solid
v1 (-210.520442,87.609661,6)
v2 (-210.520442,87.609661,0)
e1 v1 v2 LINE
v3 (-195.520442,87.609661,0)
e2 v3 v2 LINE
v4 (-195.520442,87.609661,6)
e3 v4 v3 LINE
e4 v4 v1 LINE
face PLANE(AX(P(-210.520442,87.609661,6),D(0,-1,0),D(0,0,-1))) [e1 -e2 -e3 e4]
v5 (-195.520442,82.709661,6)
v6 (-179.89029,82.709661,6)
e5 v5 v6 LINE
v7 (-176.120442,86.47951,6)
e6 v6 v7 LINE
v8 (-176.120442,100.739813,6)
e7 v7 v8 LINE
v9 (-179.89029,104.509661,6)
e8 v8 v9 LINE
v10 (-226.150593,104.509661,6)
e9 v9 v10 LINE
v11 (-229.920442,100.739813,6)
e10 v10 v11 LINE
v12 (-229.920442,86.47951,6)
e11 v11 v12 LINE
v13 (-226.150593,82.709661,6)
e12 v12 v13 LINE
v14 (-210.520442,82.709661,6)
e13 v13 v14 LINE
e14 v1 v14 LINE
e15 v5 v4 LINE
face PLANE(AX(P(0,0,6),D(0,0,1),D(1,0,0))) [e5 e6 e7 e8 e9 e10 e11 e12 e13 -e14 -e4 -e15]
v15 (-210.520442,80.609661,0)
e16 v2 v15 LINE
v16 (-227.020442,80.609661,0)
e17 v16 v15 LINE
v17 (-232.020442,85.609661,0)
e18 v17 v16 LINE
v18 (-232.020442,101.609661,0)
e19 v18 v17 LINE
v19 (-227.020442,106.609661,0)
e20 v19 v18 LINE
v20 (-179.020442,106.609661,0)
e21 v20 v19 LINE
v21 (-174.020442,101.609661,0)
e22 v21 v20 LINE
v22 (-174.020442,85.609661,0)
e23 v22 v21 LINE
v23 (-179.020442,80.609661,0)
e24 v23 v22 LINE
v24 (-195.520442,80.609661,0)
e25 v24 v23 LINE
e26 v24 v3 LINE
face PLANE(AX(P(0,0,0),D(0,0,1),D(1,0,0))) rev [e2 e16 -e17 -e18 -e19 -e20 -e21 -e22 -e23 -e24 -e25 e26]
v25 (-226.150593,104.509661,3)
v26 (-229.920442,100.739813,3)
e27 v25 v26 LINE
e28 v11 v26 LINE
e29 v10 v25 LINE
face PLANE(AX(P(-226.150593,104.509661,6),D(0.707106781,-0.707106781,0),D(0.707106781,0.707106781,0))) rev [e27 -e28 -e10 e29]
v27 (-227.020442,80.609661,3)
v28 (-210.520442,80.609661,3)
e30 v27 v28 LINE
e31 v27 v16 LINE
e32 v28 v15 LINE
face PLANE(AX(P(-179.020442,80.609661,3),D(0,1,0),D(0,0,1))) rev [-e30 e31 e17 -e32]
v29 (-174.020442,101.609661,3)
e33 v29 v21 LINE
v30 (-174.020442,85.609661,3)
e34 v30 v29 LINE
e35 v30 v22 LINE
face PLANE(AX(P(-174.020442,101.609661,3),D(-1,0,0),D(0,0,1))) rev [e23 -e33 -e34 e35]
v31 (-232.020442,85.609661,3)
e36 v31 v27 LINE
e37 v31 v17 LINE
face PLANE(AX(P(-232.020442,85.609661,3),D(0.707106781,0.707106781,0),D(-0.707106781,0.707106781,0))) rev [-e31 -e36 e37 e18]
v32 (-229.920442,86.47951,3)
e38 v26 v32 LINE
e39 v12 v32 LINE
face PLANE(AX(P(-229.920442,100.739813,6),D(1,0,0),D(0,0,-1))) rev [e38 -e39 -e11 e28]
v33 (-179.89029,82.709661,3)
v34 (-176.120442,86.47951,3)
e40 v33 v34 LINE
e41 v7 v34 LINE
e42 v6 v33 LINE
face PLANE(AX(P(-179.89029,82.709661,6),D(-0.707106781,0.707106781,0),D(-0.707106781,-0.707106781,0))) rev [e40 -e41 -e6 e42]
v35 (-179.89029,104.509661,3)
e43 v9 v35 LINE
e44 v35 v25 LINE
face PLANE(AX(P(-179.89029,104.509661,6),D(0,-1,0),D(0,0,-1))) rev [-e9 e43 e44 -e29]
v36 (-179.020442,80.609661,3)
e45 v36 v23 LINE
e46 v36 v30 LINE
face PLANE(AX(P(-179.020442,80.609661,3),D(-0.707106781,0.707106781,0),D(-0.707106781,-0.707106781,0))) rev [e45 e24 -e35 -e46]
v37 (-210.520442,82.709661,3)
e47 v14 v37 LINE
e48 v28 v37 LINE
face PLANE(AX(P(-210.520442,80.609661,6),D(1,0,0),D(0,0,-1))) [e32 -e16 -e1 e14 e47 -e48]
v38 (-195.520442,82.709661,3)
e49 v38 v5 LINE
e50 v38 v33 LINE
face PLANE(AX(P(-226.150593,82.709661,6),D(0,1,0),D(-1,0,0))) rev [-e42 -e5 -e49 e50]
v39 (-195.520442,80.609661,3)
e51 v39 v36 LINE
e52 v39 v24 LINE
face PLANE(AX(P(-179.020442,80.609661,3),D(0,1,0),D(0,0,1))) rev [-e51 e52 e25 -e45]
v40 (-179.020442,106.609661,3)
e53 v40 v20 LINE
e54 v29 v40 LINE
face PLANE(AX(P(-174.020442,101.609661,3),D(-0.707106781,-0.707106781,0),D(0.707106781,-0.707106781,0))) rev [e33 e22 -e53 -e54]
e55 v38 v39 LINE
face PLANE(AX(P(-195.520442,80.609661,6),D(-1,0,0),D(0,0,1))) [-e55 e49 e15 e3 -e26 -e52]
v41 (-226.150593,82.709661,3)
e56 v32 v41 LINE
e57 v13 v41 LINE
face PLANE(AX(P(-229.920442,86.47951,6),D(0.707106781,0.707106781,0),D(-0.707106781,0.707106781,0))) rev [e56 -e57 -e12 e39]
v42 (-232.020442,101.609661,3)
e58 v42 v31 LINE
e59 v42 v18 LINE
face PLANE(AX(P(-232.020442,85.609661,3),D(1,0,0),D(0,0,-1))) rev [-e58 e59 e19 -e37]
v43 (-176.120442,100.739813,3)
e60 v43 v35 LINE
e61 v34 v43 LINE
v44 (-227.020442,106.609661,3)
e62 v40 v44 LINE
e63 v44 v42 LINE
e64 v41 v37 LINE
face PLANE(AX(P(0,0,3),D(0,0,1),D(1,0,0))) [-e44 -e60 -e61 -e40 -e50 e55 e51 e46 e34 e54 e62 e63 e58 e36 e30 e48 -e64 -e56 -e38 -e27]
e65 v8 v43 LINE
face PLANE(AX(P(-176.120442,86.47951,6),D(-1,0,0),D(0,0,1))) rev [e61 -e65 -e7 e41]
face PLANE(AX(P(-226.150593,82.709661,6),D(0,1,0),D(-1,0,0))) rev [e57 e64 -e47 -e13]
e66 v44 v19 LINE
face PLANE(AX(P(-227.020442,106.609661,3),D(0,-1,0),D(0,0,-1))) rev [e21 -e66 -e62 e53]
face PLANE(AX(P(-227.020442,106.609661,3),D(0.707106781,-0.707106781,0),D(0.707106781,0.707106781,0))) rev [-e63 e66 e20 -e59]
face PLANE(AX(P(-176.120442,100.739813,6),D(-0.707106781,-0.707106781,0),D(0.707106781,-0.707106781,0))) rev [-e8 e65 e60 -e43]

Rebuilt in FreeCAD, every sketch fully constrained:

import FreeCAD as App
import Part
import Sketcher
from FreeCAD import Vector
Q = App.Units.Quantity

doc = App.newDocument("Part")
body = doc.addObject("PartDesign::Body", "Body")

# Sketch on XY plane
sketch1 = body.newObject("Sketcher::SketchObject", "Sketch")
sketch1.AttachmentSupport = (doc.getObject("XY_Plane"), [""])
sketch1.MapMode = "FlatFace"
sketch1.addGeometry(Part.LineSegment(Vector(-232.020442, 101.609661, 0), Vector(-232.020442, 85.609661, 0)), False)
sketch1.addGeometry(Part.LineSegment(Vector(-232.020442, 85.609661, 0), Vector(-227.020442, 80.609661, 0)), False)
sketch1.addGeometry(Part.LineSegment(Vector(-227.020442, 80.609661, 0), Vector(-179.020442, 80.609661, 0)), False)
sketch1.addGeometry(Part.LineSegment(Vector(-179.020442, 80.609661, 0), Vector(-174.020442, 85.609661, 0)), False)
sketch1.addGeometry(Part.LineSegment(Vector(-174.020442, 85.609661, 0), Vector(-174.020442, 101.609661, 0)), False)
sketch1.addGeometry(Part.LineSegment(Vector(-174.020442, 101.609661, 0), Vector(-179.020442, 106.609661, 0)), False)
sketch1.addGeometry(Part.LineSegment(Vector(-179.020442, 106.609661, 0), Vector(-227.020442, 106.609661, 0)), False)
sketch1.addGeometry(Part.LineSegment(Vector(-227.020442, 106.609661, 0), Vector(-232.020442, 101.609661, 0)), False)
sketch1.addConstraint(Sketcher.Constraint("Coincident", 0, 2, 1, 1))
sketch1.addConstraint(Sketcher.Constraint("Coincident", 1, 2, 2, 1))
sketch1.addConstraint(Sketcher.Constraint("Coincident", 2, 2, 3, 1))
sketch1.addConstraint(Sketcher.Constraint("Coincident", 3, 2, 4, 1))
sketch1.addConstraint(Sketcher.Constraint("Coincident", 4, 2, 5, 1))
sketch1.addConstraint(Sketcher.Constraint("Coincident", 5, 2, 6, 1))
sketch1.addConstraint(Sketcher.Constraint("Coincident", 6, 2, 7, 1))
sketch1.addConstraint(Sketcher.Constraint("Coincident", 7, 2, 0, 1))
sketch1.addConstraint(Sketcher.Constraint("Vertical", 0))
sketch1.addConstraint(Sketcher.Constraint("Horizontal", 2))
sketch1.addConstraint(Sketcher.Constraint("Vertical", 4))
sketch1.addConstraint(Sketcher.Constraint("Horizontal", 6))
sketch1.addConstraint(Sketcher.Constraint("Perpendicular", 1, 3))
sketch1.addConstraint(Sketcher.Constraint("Perpendicular", 3, 5))
sketch1.addConstraint(Sketcher.Constraint("Perpendicular", 5, 7))
sketch1.addConstraint(Sketcher.Constraint("Horizontal", 0, 2, 3, 2))
sketch1.addConstraint(Sketcher.Constraint("Horizontal", 4, 2, 7, 2))
sketch1.addConstraint(Sketcher.Constraint("Vertical", 2, 2, 5, 2))
sketch1.addConstraint(Sketcher.Constraint("Vertical", 1, 2, 6, 2))
sketch1.addConstraint(Sketcher.Constraint("DistanceX", 2, 1, 2, 2, Q("48 mm")))
sketch1.addConstraint(Sketcher.Constraint("DistanceY", 0, 2, 0, 1, Q("16 mm")))
sketch1.addConstraint(Sketcher.Constraint("DistanceX", 0, 2, 1, 2, Q("5 mm")))
sketch1.addConstraint(Sketcher.Constraint("DistanceX", 0, 2, -1, 1, Q("232.020442 mm")))
sketch1.addConstraint(Sketcher.Constraint("DistanceY", -1, 1, 0, 2, Q("85.609661 mm")))
pad1 = body.newObject("PartDesign::Pad", "Pad")
pad1.Profile = sketch1
pad1.Length = 3

# Sketch on XY plane
sketch2 = body.newObject("Sketcher::SketchObject", "Sketch001")
sketch2.AttachmentSupport = (doc.getObject("XY_Plane"), [""])
sketch2.MapMode = "FlatFace"
sketch2.AttachmentOffset = App.Placement(Vector(0, 0, 3), App.Rotation())
sketch2.addGeometry(Part.LineSegment(Vector(-176.120442, 100.739813, 0), Vector(-176.120442, 86.47951, 0)), False)
sketch2.addGeometry(Part.LineSegment(Vector(-176.120442, 86.47951, 0), Vector(-179.89029, 82.709661, 0)), False)
sketch2.addGeometry(Part.LineSegment(Vector(-179.89029, 82.709661, 0), Vector(-226.150593, 82.709661, 0)), False)
sketch2.addGeometry(Part.LineSegment(Vector(-226.150593, 82.709661, 0), Vector(-229.920442, 86.47951, 0)), False)
sketch2.addGeometry(Part.LineSegment(Vector(-229.920442, 86.47951, 0), Vector(-229.920442, 100.739813, 0)), False)
sketch2.addGeometry(Part.LineSegment(Vector(-229.920442, 100.739813, 0), Vector(-226.150593, 104.509661, 0)), False)
sketch2.addGeometry(Part.LineSegment(Vector(-226.150593, 104.509661, 0), Vector(-179.89029, 104.509661, 0)), False)
sketch2.addGeometry(Part.LineSegment(Vector(-179.89029, 104.509661, 0), Vector(-176.120442, 100.739813, 0)), False)
sketch2.addConstraint(Sketcher.Constraint("Coincident", 0, 2, 1, 1))
sketch2.addConstraint(Sketcher.Constraint("Coincident", 1, 2, 2, 1))
sketch2.addConstraint(Sketcher.Constraint("Coincident", 2, 2, 3, 1))
sketch2.addConstraint(Sketcher.Constraint("Coincident", 3, 2, 4, 1))
sketch2.addConstraint(Sketcher.Constraint("Coincident", 4, 2, 5, 1))
sketch2.addConstraint(Sketcher.Constraint("Coincident", 5, 2, 6, 1))
sketch2.addConstraint(Sketcher.Constraint("Coincident", 6, 2, 7, 1))
sketch2.addConstraint(Sketcher.Constraint("Coincident", 7, 2, 0, 1))
sketch2.addConstraint(Sketcher.Constraint("Vertical", 0))
sketch2.addConstraint(Sketcher.Constraint("Horizontal", 2))
sketch2.addConstraint(Sketcher.Constraint("Vertical", 4))
sketch2.addConstraint(Sketcher.Constraint("Horizontal", 6))
sketch2.addConstraint(Sketcher.Constraint("Perpendicular", 1, 3))
sketch2.addConstraint(Sketcher.Constraint("Perpendicular", 3, 5))
sketch2.addConstraint(Sketcher.Constraint("Perpendicular", 5, 7))
sketch2.addConstraint(Sketcher.Constraint("Horizontal", 0, 2, 3, 2))
sketch2.addConstraint(Sketcher.Constraint("Horizontal", 4, 2, 7, 2))
sketch2.addConstraint(Sketcher.Constraint("Vertical", 2, 2, 5, 2))
sketch2.addConstraint(Sketcher.Constraint("Vertical", 1, 2, 6, 2))
sketch2.addConstraint(Sketcher.Constraint("DistanceX", 3, 2, 0, 2, Q("53.8 mm")))
sketch2.addConstraint(Sketcher.Constraint("DistanceY", 2, 2, 5, 2, Q("21.8 mm")))
sketch2.addConstraint(Sketcher.Constraint("Distance", 1, Q("5.331371 mm")))
sketch2.addConstraint(Sketcher.Constraint("DistanceX", 0, 2, -1, 1, Q("176.120442 mm")))
sketch2.addConstraint(Sketcher.Constraint("DistanceY", -1, 1, 0, 2, Q("86.47951 mm")))
pad2 = body.newObject("PartDesign::Pad", "Pad001")
pad2.Profile = sketch2
pad2.Length = 3

# Sketch on XY plane
sketch3 = body.newObject("Sketcher::SketchObject", "Sketch002")
sketch3.AttachmentSupport = (doc.getObject("XY_Plane"), [""])
sketch3.MapMode = "FlatFace"
sketch3.addGeometry(Part.LineSegment(Vector(-210.520442, 87.609661, 0), Vector(-210.520442, 80.609661, 0)), False)
sketch3.addGeometry(Part.LineSegment(Vector(-210.520442, 80.609661, 0), Vector(-195.520442, 80.609661, 0)), False)
sketch3.addGeometry(Part.LineSegment(Vector(-195.520442, 80.609661, 0), Vector(-195.520442, 87.609661, 0)), False)
sketch3.addGeometry(Part.LineSegment(Vector(-195.520442, 87.609661, 0), Vector(-210.520442, 87.609661, 0)), False)
sketch3.addConstraint(Sketcher.Constraint("Coincident", 0, 2, 1, 1))
sketch3.addConstraint(Sketcher.Constraint("Coincident", 1, 2, 2, 1))
sketch3.addConstraint(Sketcher.Constraint("Coincident", 2, 2, 3, 1))
sketch3.addConstraint(Sketcher.Constraint("Coincident", 3, 2, 0, 1))
sketch3.addConstraint(Sketcher.Constraint("Vertical", 0))
sketch3.addConstraint(Sketcher.Constraint("Horizontal", 1))
sketch3.addConstraint(Sketcher.Constraint("Vertical", 2))
sketch3.addConstraint(Sketcher.Constraint("Horizontal", 3))
sketch3.addConstraint(Sketcher.Constraint("DistanceX", 1, 1, 1, 2, Q("15 mm")))
sketch3.addConstraint(Sketcher.Constraint("DistanceY", 0, 2, 0, 1, Q("7 mm")))
sketch3.addConstraint(Sketcher.Constraint("DistanceX", 0, 2, -1, 1, Q("210.520442 mm")))
sketch3.addConstraint(Sketcher.Constraint("DistanceY", -1, 1, 0, 2, Q("80.609661 mm")))
pocket1 = body.newObject("PartDesign::Pocket", "Pocket")
pocket1.Profile = sketch3
pocket1.Type = "ThroughAll"
pocket1.Reversed = True

doc.recompute()
